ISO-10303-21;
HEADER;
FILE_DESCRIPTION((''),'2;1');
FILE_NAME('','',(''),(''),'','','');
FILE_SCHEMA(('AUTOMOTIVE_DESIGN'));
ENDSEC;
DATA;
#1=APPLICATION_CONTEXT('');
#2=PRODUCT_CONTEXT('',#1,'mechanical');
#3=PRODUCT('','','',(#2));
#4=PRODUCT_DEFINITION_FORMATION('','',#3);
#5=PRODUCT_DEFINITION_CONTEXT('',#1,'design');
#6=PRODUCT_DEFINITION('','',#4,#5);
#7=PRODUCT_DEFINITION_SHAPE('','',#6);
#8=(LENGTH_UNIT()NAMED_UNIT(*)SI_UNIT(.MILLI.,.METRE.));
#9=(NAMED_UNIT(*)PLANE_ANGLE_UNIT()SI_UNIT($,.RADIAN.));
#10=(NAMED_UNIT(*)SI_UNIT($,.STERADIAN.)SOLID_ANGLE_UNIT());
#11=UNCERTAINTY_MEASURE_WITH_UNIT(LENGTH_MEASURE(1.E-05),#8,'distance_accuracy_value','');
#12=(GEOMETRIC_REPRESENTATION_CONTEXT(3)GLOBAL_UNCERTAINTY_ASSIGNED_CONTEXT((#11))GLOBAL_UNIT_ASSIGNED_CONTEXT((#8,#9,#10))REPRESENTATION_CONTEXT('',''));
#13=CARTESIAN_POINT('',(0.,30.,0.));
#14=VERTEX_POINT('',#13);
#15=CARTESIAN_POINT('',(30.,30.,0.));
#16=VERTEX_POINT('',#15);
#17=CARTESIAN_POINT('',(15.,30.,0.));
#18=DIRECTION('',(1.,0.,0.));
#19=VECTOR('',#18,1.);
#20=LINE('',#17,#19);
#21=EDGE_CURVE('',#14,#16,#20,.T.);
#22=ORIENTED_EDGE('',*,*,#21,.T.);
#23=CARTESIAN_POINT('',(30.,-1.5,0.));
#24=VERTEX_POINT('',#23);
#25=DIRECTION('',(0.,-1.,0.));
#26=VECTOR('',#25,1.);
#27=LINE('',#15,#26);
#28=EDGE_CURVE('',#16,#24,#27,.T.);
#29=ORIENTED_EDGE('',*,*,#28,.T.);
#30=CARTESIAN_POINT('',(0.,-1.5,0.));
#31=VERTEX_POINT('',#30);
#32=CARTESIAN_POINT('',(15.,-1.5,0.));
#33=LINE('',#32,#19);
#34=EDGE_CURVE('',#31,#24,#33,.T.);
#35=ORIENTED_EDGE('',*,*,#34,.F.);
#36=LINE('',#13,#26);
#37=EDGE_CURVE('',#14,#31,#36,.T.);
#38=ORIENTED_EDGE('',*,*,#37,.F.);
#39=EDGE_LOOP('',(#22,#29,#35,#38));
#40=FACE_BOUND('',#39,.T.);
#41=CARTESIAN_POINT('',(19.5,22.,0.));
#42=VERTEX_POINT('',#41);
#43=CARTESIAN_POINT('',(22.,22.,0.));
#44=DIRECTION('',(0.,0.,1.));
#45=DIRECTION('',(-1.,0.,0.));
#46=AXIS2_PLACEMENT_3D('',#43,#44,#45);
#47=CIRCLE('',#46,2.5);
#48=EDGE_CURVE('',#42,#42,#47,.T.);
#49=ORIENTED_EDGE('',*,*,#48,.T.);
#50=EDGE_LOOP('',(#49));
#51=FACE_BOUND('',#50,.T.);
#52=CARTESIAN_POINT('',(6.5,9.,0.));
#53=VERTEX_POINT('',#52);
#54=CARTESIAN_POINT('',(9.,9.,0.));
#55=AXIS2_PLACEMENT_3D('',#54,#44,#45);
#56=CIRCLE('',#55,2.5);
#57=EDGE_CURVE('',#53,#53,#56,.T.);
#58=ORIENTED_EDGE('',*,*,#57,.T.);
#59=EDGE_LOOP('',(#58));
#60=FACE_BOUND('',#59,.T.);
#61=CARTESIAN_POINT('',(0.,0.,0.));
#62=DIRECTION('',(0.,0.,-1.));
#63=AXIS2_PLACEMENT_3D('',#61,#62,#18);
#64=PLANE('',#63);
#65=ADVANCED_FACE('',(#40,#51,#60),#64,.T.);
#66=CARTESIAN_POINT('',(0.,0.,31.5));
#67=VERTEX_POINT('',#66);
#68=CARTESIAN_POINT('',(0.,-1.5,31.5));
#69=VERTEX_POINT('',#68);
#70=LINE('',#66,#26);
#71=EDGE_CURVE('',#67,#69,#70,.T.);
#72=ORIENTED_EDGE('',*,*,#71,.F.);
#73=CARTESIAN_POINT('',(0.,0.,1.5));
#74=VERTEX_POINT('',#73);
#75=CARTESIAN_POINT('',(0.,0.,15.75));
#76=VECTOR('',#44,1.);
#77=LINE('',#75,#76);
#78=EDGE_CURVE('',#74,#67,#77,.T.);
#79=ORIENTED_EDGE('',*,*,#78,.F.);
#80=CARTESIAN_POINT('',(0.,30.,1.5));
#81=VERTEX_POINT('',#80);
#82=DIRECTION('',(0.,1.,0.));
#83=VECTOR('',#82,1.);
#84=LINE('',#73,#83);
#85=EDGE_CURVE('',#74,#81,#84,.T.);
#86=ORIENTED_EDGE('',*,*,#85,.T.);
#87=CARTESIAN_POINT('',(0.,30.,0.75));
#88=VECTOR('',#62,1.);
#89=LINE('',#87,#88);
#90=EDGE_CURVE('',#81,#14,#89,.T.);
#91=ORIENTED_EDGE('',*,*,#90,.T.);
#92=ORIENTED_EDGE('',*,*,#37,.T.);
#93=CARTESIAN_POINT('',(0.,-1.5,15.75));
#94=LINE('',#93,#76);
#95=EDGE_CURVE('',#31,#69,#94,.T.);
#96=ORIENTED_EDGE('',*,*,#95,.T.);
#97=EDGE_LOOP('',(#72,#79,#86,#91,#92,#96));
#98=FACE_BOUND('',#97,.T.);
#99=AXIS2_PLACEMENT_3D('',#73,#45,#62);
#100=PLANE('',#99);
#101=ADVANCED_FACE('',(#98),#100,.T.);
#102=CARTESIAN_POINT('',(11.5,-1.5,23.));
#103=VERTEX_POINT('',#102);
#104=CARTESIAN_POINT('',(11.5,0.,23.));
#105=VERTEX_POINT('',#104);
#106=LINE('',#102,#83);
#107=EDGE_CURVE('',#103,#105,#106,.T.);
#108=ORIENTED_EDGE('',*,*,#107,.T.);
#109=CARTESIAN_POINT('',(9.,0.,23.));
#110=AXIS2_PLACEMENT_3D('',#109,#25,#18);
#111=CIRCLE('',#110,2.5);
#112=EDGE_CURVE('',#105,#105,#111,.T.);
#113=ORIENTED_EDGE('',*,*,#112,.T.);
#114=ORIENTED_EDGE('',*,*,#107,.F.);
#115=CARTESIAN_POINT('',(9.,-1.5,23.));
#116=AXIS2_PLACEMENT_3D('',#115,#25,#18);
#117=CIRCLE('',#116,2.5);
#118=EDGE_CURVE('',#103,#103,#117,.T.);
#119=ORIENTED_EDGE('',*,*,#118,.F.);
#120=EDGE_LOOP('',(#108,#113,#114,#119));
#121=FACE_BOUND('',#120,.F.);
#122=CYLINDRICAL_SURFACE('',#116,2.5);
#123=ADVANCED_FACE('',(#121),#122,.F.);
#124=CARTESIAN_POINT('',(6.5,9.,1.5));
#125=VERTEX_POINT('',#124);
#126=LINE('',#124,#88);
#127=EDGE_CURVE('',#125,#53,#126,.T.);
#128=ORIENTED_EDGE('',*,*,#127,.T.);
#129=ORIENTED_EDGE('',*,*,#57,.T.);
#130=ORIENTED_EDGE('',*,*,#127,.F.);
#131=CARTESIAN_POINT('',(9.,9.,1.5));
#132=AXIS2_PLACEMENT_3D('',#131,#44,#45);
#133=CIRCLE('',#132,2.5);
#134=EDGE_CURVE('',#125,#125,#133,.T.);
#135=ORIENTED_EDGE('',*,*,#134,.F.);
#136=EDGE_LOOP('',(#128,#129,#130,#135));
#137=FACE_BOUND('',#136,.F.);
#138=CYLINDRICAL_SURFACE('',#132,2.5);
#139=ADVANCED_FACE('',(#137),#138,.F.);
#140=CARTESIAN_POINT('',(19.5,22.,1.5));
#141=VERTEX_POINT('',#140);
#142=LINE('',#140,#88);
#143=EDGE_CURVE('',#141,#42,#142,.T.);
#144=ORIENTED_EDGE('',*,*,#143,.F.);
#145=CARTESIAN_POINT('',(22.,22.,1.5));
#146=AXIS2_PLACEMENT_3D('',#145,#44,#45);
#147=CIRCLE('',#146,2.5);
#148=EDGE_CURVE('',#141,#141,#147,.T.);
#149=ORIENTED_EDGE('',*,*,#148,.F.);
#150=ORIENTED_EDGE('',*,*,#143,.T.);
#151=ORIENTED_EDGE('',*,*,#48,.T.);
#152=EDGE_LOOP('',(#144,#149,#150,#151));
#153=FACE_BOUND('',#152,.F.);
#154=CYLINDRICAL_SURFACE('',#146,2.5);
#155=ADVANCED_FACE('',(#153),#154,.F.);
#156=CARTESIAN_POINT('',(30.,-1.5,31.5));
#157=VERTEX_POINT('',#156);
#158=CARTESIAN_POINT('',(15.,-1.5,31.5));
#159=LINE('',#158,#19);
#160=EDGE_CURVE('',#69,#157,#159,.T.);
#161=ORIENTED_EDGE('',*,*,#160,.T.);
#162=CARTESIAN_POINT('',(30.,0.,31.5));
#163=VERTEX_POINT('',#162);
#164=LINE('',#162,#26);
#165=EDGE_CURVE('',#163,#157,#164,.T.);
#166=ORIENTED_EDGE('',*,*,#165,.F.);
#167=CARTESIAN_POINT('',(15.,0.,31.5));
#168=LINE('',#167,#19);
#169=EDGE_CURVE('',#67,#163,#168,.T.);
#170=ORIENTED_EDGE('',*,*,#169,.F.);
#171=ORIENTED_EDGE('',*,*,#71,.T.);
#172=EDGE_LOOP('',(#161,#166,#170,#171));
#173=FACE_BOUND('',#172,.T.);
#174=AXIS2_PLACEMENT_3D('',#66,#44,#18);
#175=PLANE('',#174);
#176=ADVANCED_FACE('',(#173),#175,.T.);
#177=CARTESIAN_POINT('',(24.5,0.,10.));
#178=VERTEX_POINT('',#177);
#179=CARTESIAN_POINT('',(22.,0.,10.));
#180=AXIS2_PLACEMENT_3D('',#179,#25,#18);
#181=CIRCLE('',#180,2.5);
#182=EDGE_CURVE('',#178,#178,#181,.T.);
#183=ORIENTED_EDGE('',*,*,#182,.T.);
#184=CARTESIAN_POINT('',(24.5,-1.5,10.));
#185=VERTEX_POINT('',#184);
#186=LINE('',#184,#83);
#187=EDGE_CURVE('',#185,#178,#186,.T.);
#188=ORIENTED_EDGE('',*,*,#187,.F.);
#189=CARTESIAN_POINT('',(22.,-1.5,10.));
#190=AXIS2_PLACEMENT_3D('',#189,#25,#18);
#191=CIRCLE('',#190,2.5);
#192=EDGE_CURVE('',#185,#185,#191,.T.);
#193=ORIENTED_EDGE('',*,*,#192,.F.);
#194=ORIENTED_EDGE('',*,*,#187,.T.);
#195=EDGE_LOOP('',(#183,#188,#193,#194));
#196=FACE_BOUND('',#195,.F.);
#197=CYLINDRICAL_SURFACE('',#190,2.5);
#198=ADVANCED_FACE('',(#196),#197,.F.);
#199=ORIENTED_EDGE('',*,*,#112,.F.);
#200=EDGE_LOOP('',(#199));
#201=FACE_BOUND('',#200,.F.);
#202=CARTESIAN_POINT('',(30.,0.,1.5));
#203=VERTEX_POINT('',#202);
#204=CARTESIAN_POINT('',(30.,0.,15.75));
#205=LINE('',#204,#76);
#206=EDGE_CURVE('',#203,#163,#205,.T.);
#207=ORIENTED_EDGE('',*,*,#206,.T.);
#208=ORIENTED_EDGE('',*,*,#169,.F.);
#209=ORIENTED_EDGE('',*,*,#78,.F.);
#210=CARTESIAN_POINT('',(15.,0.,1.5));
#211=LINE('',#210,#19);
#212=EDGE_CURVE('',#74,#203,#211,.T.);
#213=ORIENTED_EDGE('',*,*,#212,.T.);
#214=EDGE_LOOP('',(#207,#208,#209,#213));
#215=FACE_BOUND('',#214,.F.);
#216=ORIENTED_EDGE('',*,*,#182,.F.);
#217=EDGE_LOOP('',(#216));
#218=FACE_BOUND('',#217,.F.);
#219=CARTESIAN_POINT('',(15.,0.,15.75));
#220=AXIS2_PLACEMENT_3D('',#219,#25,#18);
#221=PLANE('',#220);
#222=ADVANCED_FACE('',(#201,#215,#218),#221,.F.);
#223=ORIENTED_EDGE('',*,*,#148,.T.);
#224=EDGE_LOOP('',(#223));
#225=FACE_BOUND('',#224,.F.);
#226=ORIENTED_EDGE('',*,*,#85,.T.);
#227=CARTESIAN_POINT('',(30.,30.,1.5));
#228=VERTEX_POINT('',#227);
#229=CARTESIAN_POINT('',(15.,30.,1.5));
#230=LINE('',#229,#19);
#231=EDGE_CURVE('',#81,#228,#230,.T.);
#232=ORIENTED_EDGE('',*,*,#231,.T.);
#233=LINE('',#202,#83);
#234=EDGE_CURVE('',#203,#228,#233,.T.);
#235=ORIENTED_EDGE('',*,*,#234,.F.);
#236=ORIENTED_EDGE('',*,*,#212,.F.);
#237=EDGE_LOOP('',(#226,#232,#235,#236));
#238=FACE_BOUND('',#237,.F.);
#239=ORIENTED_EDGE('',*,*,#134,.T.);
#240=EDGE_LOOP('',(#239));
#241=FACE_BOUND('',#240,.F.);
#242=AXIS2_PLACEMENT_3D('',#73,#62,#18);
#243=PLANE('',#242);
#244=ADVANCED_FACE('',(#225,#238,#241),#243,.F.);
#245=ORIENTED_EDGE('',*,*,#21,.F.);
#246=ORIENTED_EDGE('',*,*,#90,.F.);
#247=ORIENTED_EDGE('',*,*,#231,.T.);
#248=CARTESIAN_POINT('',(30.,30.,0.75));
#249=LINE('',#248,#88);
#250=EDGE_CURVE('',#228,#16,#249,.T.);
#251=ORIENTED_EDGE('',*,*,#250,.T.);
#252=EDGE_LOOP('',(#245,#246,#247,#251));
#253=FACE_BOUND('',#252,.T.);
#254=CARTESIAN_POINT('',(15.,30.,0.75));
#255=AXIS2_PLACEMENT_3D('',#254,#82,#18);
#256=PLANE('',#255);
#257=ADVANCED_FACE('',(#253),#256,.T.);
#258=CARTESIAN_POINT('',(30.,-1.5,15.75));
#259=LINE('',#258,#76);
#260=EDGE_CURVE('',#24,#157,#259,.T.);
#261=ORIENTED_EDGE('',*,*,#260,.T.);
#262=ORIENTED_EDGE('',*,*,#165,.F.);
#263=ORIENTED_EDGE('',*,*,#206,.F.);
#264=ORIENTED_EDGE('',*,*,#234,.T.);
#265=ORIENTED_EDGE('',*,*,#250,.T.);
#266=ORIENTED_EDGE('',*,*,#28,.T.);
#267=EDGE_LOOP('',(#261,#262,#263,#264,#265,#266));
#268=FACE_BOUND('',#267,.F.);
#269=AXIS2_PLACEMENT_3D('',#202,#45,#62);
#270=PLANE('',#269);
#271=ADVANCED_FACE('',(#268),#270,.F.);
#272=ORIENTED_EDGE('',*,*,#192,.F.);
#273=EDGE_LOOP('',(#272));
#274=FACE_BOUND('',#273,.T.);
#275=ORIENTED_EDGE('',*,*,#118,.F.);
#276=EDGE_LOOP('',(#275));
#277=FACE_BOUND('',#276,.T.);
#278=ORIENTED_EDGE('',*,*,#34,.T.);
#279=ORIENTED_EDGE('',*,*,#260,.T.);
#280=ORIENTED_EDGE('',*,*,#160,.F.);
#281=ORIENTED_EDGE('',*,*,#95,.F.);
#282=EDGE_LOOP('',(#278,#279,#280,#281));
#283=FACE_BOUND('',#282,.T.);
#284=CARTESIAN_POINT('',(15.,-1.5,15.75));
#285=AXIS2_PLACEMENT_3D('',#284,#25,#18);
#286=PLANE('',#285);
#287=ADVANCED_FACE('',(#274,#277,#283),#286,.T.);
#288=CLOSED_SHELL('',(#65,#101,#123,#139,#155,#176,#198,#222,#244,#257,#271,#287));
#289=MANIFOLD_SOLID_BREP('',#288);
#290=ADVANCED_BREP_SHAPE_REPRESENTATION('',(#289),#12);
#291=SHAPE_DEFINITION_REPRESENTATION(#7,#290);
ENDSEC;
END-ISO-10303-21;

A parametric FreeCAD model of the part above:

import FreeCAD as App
import Part
import Sketcher
Q = App.Units.Quantity

doc = App.newDocument("Part")
body = doc.addObject("PartDesign::Body", "Body")

# Sketch on XZ plane
sketch1 = body.newObject("Sketcher::SketchObject", "Sketch")
sketch1.AttachmentSupport = (doc.getObject("XZ_Plane"), [""])
sketch1.MapMode = "FlatFace"
sketch1.addGeometry([
    Part.LineSegment(App.Vector(0, 32, 0), App.Vector(0, 0, 0)),
    Part.LineSegment(App.Vector(0, 0, 0), App.Vector(30, 0, 0)),
    Part.LineSegment(App.Vector(30, 0, 0), App.Vector(30, 32, 0)),
    Part.LineSegment(App.Vector(30, 32, 0), App.Vector(0, 32, 0)),
], False)
sketch1.addConstraint([
    Sketcher.Constraint("Coincident", 0, 2, 1, 1),
    Sketcher.Constraint("Coincident", 1, 2, 2, 1),
    Sketcher.Constraint("Coincident", 2, 2, 3, 1),
    Sketcher.Constraint("Coincident", 3, 2, 0, 1),
    Sketcher.Constraint("Vertical", 0),
    Sketcher.Constraint("Horizontal", 1),
    Sketcher.Constraint("Vertical", 2),
    Sketcher.Constraint("Horizontal", 3),
    Sketcher.Constraint("Coincident", 0, 2, -1, 1),
    Sketcher.Constraint("DistanceX", 1, 1, 1, 2, Q("30 mm")),
    Sketcher.Constraint("DistanceY", 0, 2, 0, 1, Q("31.5 mm")),
])
pad1 = body.newObject("PartDesign::Pad", "Pad")
pad1.Profile = sketch1
pad1.Length = 1.5

# Sketch on XZ plane
sketch2 = body.newObject("Sketcher::SketchObject", "Sketch001")
sketch2.AttachmentSupport = (doc.getObject("XZ_Plane"), [""])
sketch2.MapMode = "FlatFace"
sketch2.AttachmentOffset = App.Placement(App.Vector(0, 0, 1.5), App.Rotation())
sketch2.addGeometry([
    Part.Circle(App.Vector(22, 10, 0), App.Vector(0, 0, 1), 2.5),
    Part.Circle(App.Vector(9, 23, 0), App.Vector(0, 0, 1), 2.5),
], False)
sketch2.addConstraint([
    Sketcher.Constraint("Equal", 0, 1),
    Sketcher.Constraint("Diameter", 0, Q("5 mm")),
    Sketcher.Constraint("DistanceX", -1, 1, 0, 3, Q("22 mm")),
    Sketcher.Constraint("DistanceY", -1, 1, 0, 3, Q("10 mm")),
    Sketcher.Constraint("DistanceX", -1, 1, 1, 3, Q("9 mm")),
    Sketcher.Constraint("DistanceY", -1, 1, 1, 3, Q("23 mm")),
])
pocket1 = body.newObject("PartDesign::Pocket", "Pocket")
pocket1.Profile = sketch2
pocket1.Type = "ThroughAll"

# Sketch on XZ plane
sketch3 = body.newObject("Sketcher::SketchObject", "Sketch002")
sketch3.AttachmentSupport = (doc.getObject("XZ_Plane"), [""])
sketch3.MapMode = "FlatFace"
sketch3.addGeometry([
    Part.LineSegment(App.Vector(0, 0, 0), App.Vector(0, 1.5, 0)),
    Part.LineSegment(App.Vector(0, 1.5, 0), App.Vector(30, 1.5, 0)),
    Part.LineSegment(App.Vector(30, 1.5, 0), App.Vector(30, 0, 0)),
    Part.LineSegment(App.Vector(30, 0, 0), App.Vector(0, 0, 0)),
], False)
sketch3.addConstraint([
    Sketcher.Constraint("Coincident", 0, 2, 1, 1),
    Sketcher.Constraint("Coincident", 1, 2, 2, 1),
    Sketcher.Constraint("Coincident", 2, 2, 3, 1),
    Sketcher.Constraint("Coincident", 3, 2, 0, 1),
    Sketcher.Constraint("Vertical", 0),
    Sketcher.Constraint("Horizontal", 1),
    Sketcher.Constraint("Vertical", 2),
    Sketcher.Constraint("Horizontal", 3),
    Sketcher.Constraint("Coincident", 3, 2, -1, 1),
    Sketcher.Constraint("DistanceX", 1, 1, 1, 2, Q("30 mm")),
    Sketcher.Constraint("DistanceY", 0, 1, 0, 2, Q("1.5 mm")),
])
pad2 = body.newObject("PartDesign::Pad", "Pad001")
pad2.Profile = sketch3
pad2.Length = 30
pad2.Reversed = True

# Sketch on XY plane
sketch4 = body.newObject("Sketcher::SketchObject", "Sketch003")
sketch4.AttachmentSupport = (doc.getObject("XY_Plane"), [""])
sketch4.MapMode = "FlatFace"
sketch4.AttachmentOffset = App.Placement(App.Vector(0, 0, 1.5), App.Rotation())
sketch4.addGeometry([
    Part.Circle(App.Vector(9, 9, 0), App.Vector(0, 0, 1), 2.5),
    Part.Circle(App.Vector(22, 22, 0), App.Vector(0, 0, 1), 2.5),
], False)
sketch4.addConstraint([
    Sketcher.Constraint("Equal", 0, 1),
    Sketcher.Constraint("Diameter", 0, Q("5 mm")),
    Sketcher.Constraint("DistanceX", -1, 1, 0, 3, Q("9 mm")),
    Sketcher.Constraint("DistanceY", -1, 1, 0, 3, Q("9 mm")),
    Sketcher.Constraint("DistanceX", -1, 1, 1, 3, Q("22 mm")),
    Sketcher.Constraint("DistanceY", -1, 1, 1, 3, Q("22 mm")),
])
pocket2 = body.newObject("PartDesign::Pocket", "Pocket001")
pocket2.Profile = sketch4
pocket2.Type = "ThroughAll"

doc.recompute()
